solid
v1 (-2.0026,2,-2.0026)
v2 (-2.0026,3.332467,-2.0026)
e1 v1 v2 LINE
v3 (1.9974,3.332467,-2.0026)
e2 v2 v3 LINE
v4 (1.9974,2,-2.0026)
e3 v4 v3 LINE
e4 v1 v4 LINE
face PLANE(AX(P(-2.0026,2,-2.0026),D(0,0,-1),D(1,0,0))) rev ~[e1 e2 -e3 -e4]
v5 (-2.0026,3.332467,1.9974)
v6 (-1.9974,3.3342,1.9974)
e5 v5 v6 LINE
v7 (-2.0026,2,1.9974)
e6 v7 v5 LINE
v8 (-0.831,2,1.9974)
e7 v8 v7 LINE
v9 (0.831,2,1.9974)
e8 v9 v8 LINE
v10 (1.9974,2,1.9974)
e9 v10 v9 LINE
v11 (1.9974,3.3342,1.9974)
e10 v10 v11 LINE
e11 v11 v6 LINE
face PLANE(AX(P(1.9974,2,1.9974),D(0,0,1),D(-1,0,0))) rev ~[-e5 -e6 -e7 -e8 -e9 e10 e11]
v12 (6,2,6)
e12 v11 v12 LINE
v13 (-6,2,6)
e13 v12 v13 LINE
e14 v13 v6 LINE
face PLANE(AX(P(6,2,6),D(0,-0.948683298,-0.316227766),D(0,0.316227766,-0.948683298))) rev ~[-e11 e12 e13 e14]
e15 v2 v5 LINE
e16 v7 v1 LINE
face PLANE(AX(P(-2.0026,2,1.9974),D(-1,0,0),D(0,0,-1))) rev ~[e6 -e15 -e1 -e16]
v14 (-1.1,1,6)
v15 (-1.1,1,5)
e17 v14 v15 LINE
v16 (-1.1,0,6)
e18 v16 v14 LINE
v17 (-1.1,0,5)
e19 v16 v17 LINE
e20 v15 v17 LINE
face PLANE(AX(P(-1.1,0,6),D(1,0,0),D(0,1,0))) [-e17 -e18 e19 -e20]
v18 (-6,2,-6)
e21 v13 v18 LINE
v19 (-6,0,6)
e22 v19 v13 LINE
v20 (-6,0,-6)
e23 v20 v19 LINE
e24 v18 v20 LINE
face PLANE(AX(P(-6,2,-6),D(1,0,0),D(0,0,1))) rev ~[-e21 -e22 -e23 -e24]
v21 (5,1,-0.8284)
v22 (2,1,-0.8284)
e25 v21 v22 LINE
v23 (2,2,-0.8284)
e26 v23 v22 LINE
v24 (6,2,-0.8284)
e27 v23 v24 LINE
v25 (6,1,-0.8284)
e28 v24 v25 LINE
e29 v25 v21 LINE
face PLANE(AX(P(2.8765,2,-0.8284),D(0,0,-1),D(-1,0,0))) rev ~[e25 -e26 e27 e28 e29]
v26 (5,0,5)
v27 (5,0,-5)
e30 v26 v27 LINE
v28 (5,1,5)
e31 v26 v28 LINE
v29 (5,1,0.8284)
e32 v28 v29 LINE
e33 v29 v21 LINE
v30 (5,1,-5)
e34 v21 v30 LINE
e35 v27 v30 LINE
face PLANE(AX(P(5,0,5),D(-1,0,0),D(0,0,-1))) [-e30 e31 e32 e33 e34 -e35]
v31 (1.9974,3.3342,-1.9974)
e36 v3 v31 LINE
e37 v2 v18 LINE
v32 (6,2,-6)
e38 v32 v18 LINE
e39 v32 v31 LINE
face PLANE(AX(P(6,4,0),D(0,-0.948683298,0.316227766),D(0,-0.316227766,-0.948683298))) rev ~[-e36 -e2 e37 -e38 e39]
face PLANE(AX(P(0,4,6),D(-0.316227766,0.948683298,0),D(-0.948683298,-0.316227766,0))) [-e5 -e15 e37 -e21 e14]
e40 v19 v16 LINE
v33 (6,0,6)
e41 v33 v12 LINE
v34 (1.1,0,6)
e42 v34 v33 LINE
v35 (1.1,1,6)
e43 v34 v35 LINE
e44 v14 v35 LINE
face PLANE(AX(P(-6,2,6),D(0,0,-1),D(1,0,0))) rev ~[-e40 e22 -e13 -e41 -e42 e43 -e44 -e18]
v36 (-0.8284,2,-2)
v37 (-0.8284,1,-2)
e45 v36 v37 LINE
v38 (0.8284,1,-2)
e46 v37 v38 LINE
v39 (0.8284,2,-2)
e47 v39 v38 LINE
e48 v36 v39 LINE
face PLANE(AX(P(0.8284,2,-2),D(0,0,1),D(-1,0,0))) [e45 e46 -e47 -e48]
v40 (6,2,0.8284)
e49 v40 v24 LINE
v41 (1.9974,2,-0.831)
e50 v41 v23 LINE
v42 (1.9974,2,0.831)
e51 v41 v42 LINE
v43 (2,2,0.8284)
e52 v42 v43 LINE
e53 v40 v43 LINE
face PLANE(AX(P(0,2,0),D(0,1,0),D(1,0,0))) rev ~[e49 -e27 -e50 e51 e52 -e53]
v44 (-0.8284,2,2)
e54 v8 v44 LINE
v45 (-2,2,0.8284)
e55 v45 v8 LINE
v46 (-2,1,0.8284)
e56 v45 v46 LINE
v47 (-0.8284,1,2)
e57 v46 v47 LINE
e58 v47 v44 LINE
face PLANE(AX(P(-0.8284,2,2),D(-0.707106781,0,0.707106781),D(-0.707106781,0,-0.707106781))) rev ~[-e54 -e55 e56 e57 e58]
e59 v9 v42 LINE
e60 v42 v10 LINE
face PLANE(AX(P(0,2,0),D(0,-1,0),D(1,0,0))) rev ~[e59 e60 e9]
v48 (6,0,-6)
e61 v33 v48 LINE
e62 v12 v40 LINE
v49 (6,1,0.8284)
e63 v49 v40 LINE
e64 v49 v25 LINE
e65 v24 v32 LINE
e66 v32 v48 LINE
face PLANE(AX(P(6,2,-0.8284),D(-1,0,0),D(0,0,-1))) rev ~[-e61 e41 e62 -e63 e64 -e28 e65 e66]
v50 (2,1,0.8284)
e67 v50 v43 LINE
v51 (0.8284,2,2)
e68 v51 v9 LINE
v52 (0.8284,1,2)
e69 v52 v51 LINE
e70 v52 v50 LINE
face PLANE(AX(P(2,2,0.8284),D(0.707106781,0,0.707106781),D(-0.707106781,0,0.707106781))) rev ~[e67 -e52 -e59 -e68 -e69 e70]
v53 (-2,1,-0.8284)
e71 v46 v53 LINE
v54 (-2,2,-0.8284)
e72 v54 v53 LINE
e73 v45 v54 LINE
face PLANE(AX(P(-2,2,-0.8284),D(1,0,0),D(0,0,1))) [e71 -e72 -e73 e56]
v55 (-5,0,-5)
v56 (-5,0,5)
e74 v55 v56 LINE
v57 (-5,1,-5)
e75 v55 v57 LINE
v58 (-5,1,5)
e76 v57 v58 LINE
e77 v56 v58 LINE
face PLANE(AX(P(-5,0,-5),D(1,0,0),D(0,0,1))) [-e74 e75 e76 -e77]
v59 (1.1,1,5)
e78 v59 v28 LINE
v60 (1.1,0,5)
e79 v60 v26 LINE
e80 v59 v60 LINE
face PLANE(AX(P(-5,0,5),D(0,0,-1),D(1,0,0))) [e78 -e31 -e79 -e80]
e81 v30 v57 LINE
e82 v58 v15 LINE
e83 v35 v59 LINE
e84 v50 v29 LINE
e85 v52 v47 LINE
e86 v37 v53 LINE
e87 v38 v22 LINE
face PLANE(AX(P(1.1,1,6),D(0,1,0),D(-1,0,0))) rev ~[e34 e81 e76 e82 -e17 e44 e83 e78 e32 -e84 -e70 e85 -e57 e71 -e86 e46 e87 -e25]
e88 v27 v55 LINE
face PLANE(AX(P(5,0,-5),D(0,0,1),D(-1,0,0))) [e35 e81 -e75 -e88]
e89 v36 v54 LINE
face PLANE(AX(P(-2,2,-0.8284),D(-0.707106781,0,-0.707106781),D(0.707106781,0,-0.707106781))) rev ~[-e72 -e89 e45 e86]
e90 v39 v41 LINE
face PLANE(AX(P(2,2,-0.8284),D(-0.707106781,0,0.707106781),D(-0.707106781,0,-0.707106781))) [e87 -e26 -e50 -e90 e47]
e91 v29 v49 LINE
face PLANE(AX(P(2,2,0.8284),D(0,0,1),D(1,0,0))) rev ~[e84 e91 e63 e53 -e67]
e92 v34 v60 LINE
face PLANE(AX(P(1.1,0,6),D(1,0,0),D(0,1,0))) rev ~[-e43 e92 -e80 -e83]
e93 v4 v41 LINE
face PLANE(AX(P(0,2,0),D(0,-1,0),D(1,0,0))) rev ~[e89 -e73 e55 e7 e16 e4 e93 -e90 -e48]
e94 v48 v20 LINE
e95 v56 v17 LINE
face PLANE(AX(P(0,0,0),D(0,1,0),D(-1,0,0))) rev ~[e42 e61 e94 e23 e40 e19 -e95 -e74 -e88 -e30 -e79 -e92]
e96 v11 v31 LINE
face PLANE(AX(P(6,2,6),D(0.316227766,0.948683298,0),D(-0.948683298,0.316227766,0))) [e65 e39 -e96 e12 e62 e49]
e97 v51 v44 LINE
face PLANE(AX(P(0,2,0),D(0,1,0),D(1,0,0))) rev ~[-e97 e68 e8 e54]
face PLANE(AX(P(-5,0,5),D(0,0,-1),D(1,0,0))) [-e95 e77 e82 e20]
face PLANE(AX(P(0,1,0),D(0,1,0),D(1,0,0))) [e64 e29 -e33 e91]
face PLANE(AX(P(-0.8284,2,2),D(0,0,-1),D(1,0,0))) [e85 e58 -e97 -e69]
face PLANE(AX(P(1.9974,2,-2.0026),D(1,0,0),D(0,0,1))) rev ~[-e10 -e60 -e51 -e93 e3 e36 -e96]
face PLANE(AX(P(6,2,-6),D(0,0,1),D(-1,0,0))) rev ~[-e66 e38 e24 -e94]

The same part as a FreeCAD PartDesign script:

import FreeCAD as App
import Part
import Sketcher
Q = App.Units.Quantity


def add_polygon(sketch, points):
    """Adds a closed chain of lines whose ends are joined by coincident constraints."""
    first, n = sketch.GeometryCount, len(points)
    for a, b in zip(points, points[1:] + points[:1]):
        sketch.addGeometry(Part.LineSegment(App.Vector(*a, 0), App.Vector(*b, 0)), False)
    for i in range(n):
        sketch.addConstraint(Sketcher.Constraint("Coincident", first + i, 2, first + (i + 1) % n, 1))

doc = App.newDocument("Part")
body = doc.addObject("PartDesign::Body", "Body")

# Sketch on XZ plane
sketch1 = body.newObject("Sketcher::SketchObject", "Sketch")
sketch1.AttachmentSupport = (doc.getObject("XZ_Plane"), [""])
sketch1.MapMode = "FlatFace"
add_polygon(sketch1, [(-6, -6), (-6, 6), (6, 6), (6, -6)])  # lines 0-3
add_polygon(sketch1, [(5, 5), (-5, 5), (-5, -5), (5, -5)])  # lines 4-7
sketch1.addConstraint([
    Sketcher.Constraint("Vertical", 0),
    Sketcher.Constraint("Horizontal", 1),
    Sketcher.Constraint("Vertical", 2),
    Sketcher.Constraint("Horizontal", 3),
    Sketcher.Constraint("Horizontal", 4),
    Sketcher.Constraint("Vertical", 5),
    Sketcher.Constraint("Horizontal", 6),
    Sketcher.Constraint("Vertical", 7),
    Sketcher.Constraint("Symmetric", 0, 2, 2, 2, -1, 1),
    Sketcher.Constraint("Symmetric", 4, 2, 6, 2, -1, 1),
    Sketcher.Constraint("Equal", 3, 0),
    Sketcher.Constraint("Equal", 6, 5),
    Sketcher.Constraint("DistanceX", 1, 1, 1, 2, Q("12 mm")),
    Sketcher.Constraint("DistanceX", 4, 2, 4, 1, Q("10 mm")),
])
pad1 = body.newObject("PartDesign::Pad", "Pad")
pad1.Profile = sketch1
pad1.Length = 2
pad1.Reversed = True

# Sketch on YZ plane
sketch2 = body.newObject("Sketcher::SketchObject", "Sketch001")
sketch2.AttachmentSupport = (doc.getObject("YZ_Plane"), [""])
sketch2.MapMode = "FlatFace"
sketch2.AttachmentOffset = App.Placement(App.Vector(0, 0, 6), App.Rotation())
add_polygon(sketch2, [(2, 6), (1, 6), (1, -6), (2, -6)])  # lines 0-3
sketch2.addConstraint([
    Sketcher.Constraint("Horizontal", 0),
    Sketcher.Constraint("Vertical", 1),
    Sketcher.Constraint("Horizontal", 2),
    Sketcher.Constraint("Vertical", 3),
    Sketcher.Constraint("DistanceX", 0, 2, 0, 1, Q("1 mm")),
    Sketcher.Constraint("DistanceY", 1, 2, 1, 1, Q("12 mm")),
    Sketcher.Constraint("DistanceX", -1, 1, 0, 2, Q("1 mm")),
    Sketcher.Constraint("DistanceY", -1, 1, 0, 2, Q("6 mm")),
])
pad2 = body.newObject("PartDesign::Pad", "Pad001")
pad2.Profile = sketch2
pad2.Length = 11.5
pad2.Reversed = True

# Sketch on XZ plane
sketch3 = body.newObject("Sketcher::SketchObject", "Sketch002")
sketch3.AttachmentSupport = (doc.getObject("XZ_Plane"), [""])
sketch3.MapMode = "FlatFace"
sketch3.AttachmentOffset = App.Placement(App.Vector(0, 0, -2), App.Rotation())
add_polygon(sketch3, [(-2, 0.8), (-0.8, 2), (0.8, 2), (2, 0.8), (2, -0.8), (0.8, -2), (-0.8, -2), (-2, -0.8)])  # lines 0-7
sketch3.addConstraint([
    Sketcher.Constraint("Horizontal", 1),
    Sketcher.Constraint("Vertical", 3),
    Sketcher.Constraint("Horizontal", 5),
    Sketcher.Constraint("Vertical", 7),
    Sketcher.Constraint("Symmetric", 0, 2, 4, 2, -1, 1),
    Sketcher.Constraint("Symmetric", 2, 2, 6, 2, -1, 1),
    Sketcher.Constraint("Perpendicular", 0, 2),
    Sketcher.Constraint("Perpendicular", 2, 4),
    Sketcher.Constraint("Perpendicular", 4, 6),
    Sketcher.Constraint("Horizontal", 3, 2, 6, 2),
    Sketcher.Constraint("Vertical", 1, 2, 4, 2),
    Sketcher.Constraint("Equal", 5, 3),
    Sketcher.Constraint("DistanceY", -1, 1, 0, 2, Q("2 mm")),
    Sketcher.Constraint("Distance", 0, Q("1.657 mm")),
])
pocket1 = body.newObject("PartDesign::Pocket", "Pocket")
pocket1.Profile = sketch3
pocket1.Type = "ThroughAll"
pocket1.Midplane = True

# Sketch on XZ plane
sketch4 = body.newObject("Sketcher::SketchObject", "Sketch003")
sketch4.AttachmentSupport = (doc.getObject("XZ_Plane"), [""])
sketch4.MapMode = "FlatFace"
sketch4.AttachmentOffset = App.Placement(App.Vector(0, 0, -2), App.Rotation())
add_polygon(sketch4, [(2, -0.8), (2, 0.8), (7.5, 0.8), (7.5, -0.8)])  # lines 0-3
sketch4.addConstraint([
    Sketcher.Constraint("Vertical", 0),
    Sketcher.Constraint("Horizontal", 1),
    Sketcher.Constraint("Vertical", 2),
    Sketcher.Constraint("Horizontal", 3),
    Sketcher.Constraint("DistanceX", -1, 1, 0, 2, Q("2 mm")),
    Sketcher.Constraint("DistanceX", 1, 1, 1, 2, Q("5.5124 mm")),
    Sketcher.Constraint("DistanceY", 0, 1, 0, 2, Q("1.6568 mm")),
    Sketcher.Constraint("DistanceY", -1, 1, 0, 2, Q("0.8284 mm")),
])
pocket2 = body.newObject("PartDesign::Pocket", "Pocket001")
pocket2.Profile = sketch4
pocket2.Length = 1
pocket2.Reversed = True

# Sketch on XZ plane
sketch5 = body.newObject("Sketcher::SketchObject", "Sketch004")
sketch5.AttachmentSupport = (doc.getObject("XZ_Plane"), [""])
sketch5.MapMode = "FlatFace"
sketch5.AttachmentOffset = App.Placement(App.Vector(0, 0, -2), App.Rotation())
add_polygon(sketch5, [(-6, -6), (-6, 6), (6, 6), (6, -6)])  # lines 0-3
sketch5.addConstraint([
    Sketcher.Constraint("Vertical", 0),
    Sketcher.Constraint("Horizontal", 1),
    Sketcher.Constraint("Vertical", 2),
    Sketcher.Constraint("Horizontal", 3),
    Sketcher.Constraint("Symmetric", 0, 2, 2, 2, -1, 1),
    Sketcher.Constraint("Equal", 3, 0),
    Sketcher.Constraint("DistanceX", 1, 1, 1, 2, Q("12 mm")),
])
pad3 = body.newObject("PartDesign::Pad", "Pad002")
pad3.Profile = sketch5
pad3.Length = 25
pad3.Reversed = True

# Sketch on YZ plane
sketch6 = body.newObject("Sketcher::SketchObject", "Sketch005")
sketch6.AttachmentSupport = (doc.getObject("YZ_Plane"), [""])
sketch6.MapMode = "FlatFace"
sketch6.AttachmentOffset = App.Placement(App.Vector(0, 0, 6), App.Rotation())
add_polygon(sketch6, [(2, 8.5), (2, 6), (4, 0), (2, -6), (28.7, -6), (28.7, 8.5)])  # lines 0-5
sketch6.addConstraint([
    Sketcher.Constraint("Vertical", 0),
    Sketcher.Constraint("Horizontal", 3),
    Sketcher.Constraint("Vertical", 4),
    Sketcher.Constraint("Horizontal", 5),
    Sketcher.Constraint("Symmetric", 0, 2, 2, 2, -1),
    Sketcher.Constraint("PointOnObject", 1, 2, -1),
    Sketcher.Constraint("DistanceX", -1, 1, 1, 2, Q("4 mm")),
    Sketcher.Constraint("DistanceX", -1, 1, 0, 2, Q("2 mm")),
    Sketcher.Constraint("DistanceY", -1, 1, 0, 2, Q("6 mm")),
    Sketcher.Constraint("DistanceX", 3, 1, 3, 2, Q("26.669 mm")),
    Sketcher.Constraint("DistanceY", 0, 2, 0, 1, Q("2.469 mm")),
])
pocket3 = body.newObject("PartDesign::Pocket", "Pocket002")
pocket3.Profile = sketch6
pocket3.Length = 23.25

# Sketch on XY plane
sketch7 = body.newObject("Sketcher::SketchObject", "Sketch006")
sketch7.AttachmentSupport = (doc.getObject("XY_Plane"), [""])
sketch7.MapMode = "FlatFace"
sketch7.AttachmentOffset = App.Placement(App.Vector(0, 0, 6), App.Rotation())
add_polygon(sketch7, [(-6, 2), (0, 4), (6, 2), (7.7, 2), (7.7, 5), (-6, 5)])  # lines 0-5
sketch7.addConstraint([
    Sketcher.Constraint("Horizontal", 2),
    Sketcher.Constraint("Vertical", 3),
    Sketcher.Constraint("Horizontal", 4),
    Sketcher.Constraint("Vertical", 5),
    Sketcher.Constraint("Symmetric", 1, 2, 5, 2, -2),
    Sketcher.Constraint("PointOnObject", 0, 2, -2),
    Sketcher.Constraint("DistanceY", -1, 1, 0, 2, Q("4 mm")),
    Sketcher.Constraint("DistanceX", -1, 1, 1, 2, Q("6 mm")),
    Sketcher.Constraint("DistanceY", -1, 1, 1, 2, Q("2 mm")),
    Sketcher.Constraint("DistanceX", 2, 1, 2, 2, Q("1.6732 mm")),
    Sketcher.Constraint("DistanceY", 3, 1, 3, 2, Q("2.9606 mm")),
])
pocket4 = body.newObject("PartDesign::Pocket", "Pocket003")
pocket4.Profile = sketch7
pocket4.Length = 41.75

# Sketch on XZ plane
sketch8 = body.newObject("Sketcher::SketchObject", "Sketch007")
sketch8.AttachmentSupport = (doc.getObject("XZ_Plane"), [""])
sketch8.MapMode = "FlatFace"
sketch8.AttachmentOffset = App.Placement(App.Vector(0, 0, -2), App.Rotation())
add_polygon(sketch8, [(2, -2), (2, 2), (-2, 2), (-2, -2)])  # lines 0-3
sketch8.addConstraint([
    Sketcher.Constraint("Vertical", 0),
    Sketcher.Constraint("Horizontal", 1),
    Sketcher.Constraint("Vertical", 2),
    Sketcher.Constraint("Horizontal", 3),
    Sketcher.Constraint("Equal", 3, 0),
    Sketcher.Constraint("DistanceX", 1, 2, 1, 1, Q("4 mm")),
    Sketcher.Constraint("DistanceX", -1, 1, 0, 2, Q("1.9974 mm")),
    Sketcher.Constraint("DistanceY", -1, 1, 0, 2, Q("1.9974 mm")),
])
pocket5 = body.newObject("PartDesign::Pocket", "Pocket004")
pocket5.Profile = sketch8
pocket5.Length = 105

# Sketch on XY plane
sketch9 = body.newObject("Sketcher::SketchObject", "Sketch008")
sketch9.AttachmentSupport = (doc.getObject("XY_Plane"), [""])
sketch9.MapMode = "FlatFace"
sketch9.AttachmentOffset = App.Placement(App.Vector(0, 0, 6), App.Rotation())
add_polygon(sketch9, [(1.1, 0), (1.1, 1), (-1.1, 1), (-1.1, 0)])  # lines 0-3
sketch9.addConstraint([
    Sketcher.Constraint("Vertical", 0),
    Sketcher.Constraint("Horizontal", 1),
    Sketcher.Constraint("Vertical", 2),
    Sketcher.Constraint("Horizontal", 3),
    Sketcher.Constraint("Symmetric", 2, 2, 3, 2, -1, 1),
    Sketcher.Constraint("DistanceX", -1, 1, 0, 2, Q("1.1 mm")),
    Sketcher.Constraint("DistanceY", 0, 1, 0, 2, Q("1 mm")),
])
pocket6 = body.newObject("PartDesign::Pocket", "Pocket005")
pocket6.Profile = sketch9
pocket6.Length = 2.75

doc.recompute()
